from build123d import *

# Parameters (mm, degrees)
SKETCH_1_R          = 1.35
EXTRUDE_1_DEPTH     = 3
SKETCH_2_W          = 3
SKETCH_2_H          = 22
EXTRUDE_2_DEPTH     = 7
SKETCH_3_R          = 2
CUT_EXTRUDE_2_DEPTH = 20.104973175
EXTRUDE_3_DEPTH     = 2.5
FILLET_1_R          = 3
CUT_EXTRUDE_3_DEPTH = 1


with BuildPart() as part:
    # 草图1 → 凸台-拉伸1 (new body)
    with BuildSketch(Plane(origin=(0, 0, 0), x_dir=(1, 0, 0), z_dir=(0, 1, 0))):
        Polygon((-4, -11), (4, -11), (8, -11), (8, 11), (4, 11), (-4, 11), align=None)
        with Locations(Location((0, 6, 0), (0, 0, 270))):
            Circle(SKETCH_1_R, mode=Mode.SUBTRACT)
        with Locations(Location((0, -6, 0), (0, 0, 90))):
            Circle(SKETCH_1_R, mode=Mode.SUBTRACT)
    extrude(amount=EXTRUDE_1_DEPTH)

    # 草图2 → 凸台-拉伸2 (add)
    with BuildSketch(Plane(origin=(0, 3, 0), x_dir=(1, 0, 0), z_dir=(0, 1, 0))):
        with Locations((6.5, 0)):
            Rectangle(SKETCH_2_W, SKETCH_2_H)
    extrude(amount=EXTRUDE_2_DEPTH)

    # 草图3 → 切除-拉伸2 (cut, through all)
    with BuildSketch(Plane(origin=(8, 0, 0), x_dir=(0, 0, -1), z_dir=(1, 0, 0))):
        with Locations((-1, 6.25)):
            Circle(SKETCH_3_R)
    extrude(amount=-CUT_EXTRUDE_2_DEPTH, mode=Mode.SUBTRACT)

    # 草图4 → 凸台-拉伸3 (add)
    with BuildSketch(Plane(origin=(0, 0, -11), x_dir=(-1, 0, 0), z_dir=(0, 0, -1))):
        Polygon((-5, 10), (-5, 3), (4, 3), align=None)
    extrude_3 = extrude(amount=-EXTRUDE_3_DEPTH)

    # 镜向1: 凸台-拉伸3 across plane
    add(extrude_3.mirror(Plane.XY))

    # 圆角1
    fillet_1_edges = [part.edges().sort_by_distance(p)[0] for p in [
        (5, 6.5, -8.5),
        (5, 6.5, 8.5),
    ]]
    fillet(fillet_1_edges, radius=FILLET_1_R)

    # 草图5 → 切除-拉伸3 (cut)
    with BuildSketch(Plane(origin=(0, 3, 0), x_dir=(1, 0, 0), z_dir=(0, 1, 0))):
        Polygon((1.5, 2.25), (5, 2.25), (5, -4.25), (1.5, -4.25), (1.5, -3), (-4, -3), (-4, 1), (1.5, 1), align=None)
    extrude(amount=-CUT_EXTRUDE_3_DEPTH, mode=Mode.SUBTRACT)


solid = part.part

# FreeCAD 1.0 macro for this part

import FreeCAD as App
import Part
import Sketcher

V = App.Vector


def edges_at(feature, points):
    """Names of the edges that pass closest to the given points."""
    edges = feature.Shape.Edges
    near = lambda p: min(range(len(edges)), key=lambda i: edges[i].distToShape(Part.Vertex(*p))[0])
    return sorted({f"Edge{near(p) + 1}" for p in points})

doc = App.newDocument("Part")
body = doc.addObject("PartDesign::Body", "Body")

sketch1 = body.newObject("Sketcher::SketchObject", "Sketch")
sketch1.AttachmentSupport = (doc.getObject("XZ_Plane"), [""])
sketch1.MapMode = "FlatFace"
sketch1.addGeometry(Part.LineSegment(V(-4, 11, 0), V(8, 11, 0)), False)
sketch1.addGeometry(Part.LineSegment(V(8, 11, 0), V(8, -11, 0)), False)
sketch1.addGeometry(Part.LineSegment(V(8, -11, 0), V(-4, -11, 0)), False)
sketch1.addGeometry(Part.LineSegment(V(-4, -11, 0), V(-4, 11, 0)), False)
sketch1.addGeometry(Part.Circle(V(0, 6, 0), V(0, 0, 1), 1.4), False)
sketch1.addGeometry(Part.Circle(V(0, -6, 0), V(0, 0, 1), 1.4), False)
sketch1.addConstraint(Sketcher.Constraint("Coincident", 0, 2, 1, 1))
sketch1.addConstraint(Sketcher.Constraint("Coincident", 1, 2, 2, 1))
sketch1.addConstraint(Sketcher.Constraint("Coincident", 2, 2, 3, 1))
sketch1.addConstraint(Sketcher.Constraint("Coincident", 3, 2, 0, 1))
sketch1.addConstraint(Sketcher.Constraint("Horizontal", 0))
sketch1.addConstraint(Sketcher.Constraint("Vertical", 1))
sketch1.addConstraint(Sketcher.Constraint("Horizontal", 2))
sketch1.addConstraint(Sketcher.Constraint("Vertical", 3))
sketch1.addConstraint(Sketcher.Constraint("Equal", 4, 5))
sketch1.addConstraint(Sketcher.Constraint("Symmetric", 4, 3, 5, 3, -1, 1))
sketch1.addConstraint(Sketcher.Constraint("PointOnObject", 4, 3, -2))
sketch1.addConstraint(Sketcher.Constraint("Diameter", 4, 2.7))
sketch1.addConstraint(Sketcher.Constraint("DistanceX", 0, 1, 0, 2, 12.0))
sketch1.addConstraint(Sketcher.Constraint("DistanceY", 1, 2, 1, 1, 22.0))
sketch1.addConstraint(Sketcher.Constraint("DistanceY", -1, 1, 4, 3, 6.0))
sketch1.addConstraint(Sketcher.Constraint("DistanceX", -1, 1, 0, 2, 8.0))
sketch1.addConstraint(Sketcher.Constraint("DistanceY", -1, 1, 0, 2, 11.0))
pad1 = body.newObject("PartDesign::Pad", "Pad")
pad1.Profile = sketch1
pad1.Length = 3
pad1.Reversed = True

sketch2 = body.newObject("Sketcher::SketchObject", "Sketch001")
sketch2.AttachmentSupport = (doc.getObject("XZ_Plane"), [""])
sketch2.MapMode = "FlatFace"
sketch2.AttachmentOffset = App.Placement(V(0, 0, -3), App.Rotation())
sketch2.addGeometry(Part.LineSegment(V(5, -11, 0), V(5, 11, 0)), False)
sketch2.addGeometry(Part.LineSegment(V(5, 11, 0), V(8, 11, 0)), False)
sketch2.addGeometry(Part.LineSegment(V(8, 11, 0), V(8, -11, 0)), False)
sketch2.addGeometry(Part.LineSegment(V(8, -11, 0), V(5, -11, 0)), False)
sketch2.addConstraint(Sketcher.Constraint("Coincident", 0, 2, 1, 1))
sketch2.addConstraint(Sketcher.Constraint("Coincident", 1, 2, 2, 1))
sketch2.addConstraint(Sketcher.Constraint("Coincident", 2, 2, 3, 1))
sketch2.addConstraint(Sketcher.Constraint("Coincident", 3, 2, 0, 1))
sketch2.addConstraint(Sketcher.Constraint("Vertical", 0))
sketch2.addConstraint(Sketcher.Constraint("Horizontal", 1))
sketch2.addConstraint(Sketcher.Constraint("Vertical", 2))
sketch2.addConstraint(Sketcher.Constraint("Horizontal", 3))
sketch2.addConstraint(Sketcher.Constraint("DistanceX", 1, 1, 1, 2, 3.0))
sketch2.addConstraint(Sketcher.Constraint("DistanceY", 0, 1, 0, 2, 22.0))
sketch2.addConstraint(Sketcher.Constraint("DistanceX", -1, 1, 0, 2, 5.0))
sketch2.addConstraint(Sketcher.Constraint("DistanceY", -1, 1, 0, 2, 11.0))
pad2 = body.newObject("PartDesign::Pad", "Pad001")
pad2.Profile = sketch2
pad2.Length = 7
pad2.Reversed = True

sketch3 = body.newObject("Sketcher::SketchObject", "Sketch002")
sketch3.AttachmentSupport = (doc.getObject("YZ_Plane"), [""])
sketch3.MapMode = "FlatFace"
sketch3.AttachmentOffset = App.Placement(V(0, 0, 8), App.Rotation())
sketch3.addGeometry(Part.Circle(V(6.2, 1, 0), V(0, 0, 1), 2), False)
sketch3.addConstraint(Sketcher.Constraint("Diameter", 0, 4.0))
sketch3.addConstraint(Sketcher.Constraint("DistanceY", -1, 1, 0, 3, 1.0))
sketch3.addConstraint(Sketcher.Constraint("DistanceX", -1, 1, 0, 3, 6.25))
pocket1 = body.newObject("PartDesign::Pocket", "Pocket")
pocket1.Profile = sketch3
pocket1.Type = "ThroughAll"

sketch4 = body.newObject("Sketcher::SketchObject", "Sketch003")
sketch4.AttachmentSupport = (doc.getObject("XY_Plane"), [""])
sketch4.MapMode = "FlatFace"
sketch4.AttachmentOffset = App.Placement(V(0, 0, -11), App.Rotation())
sketch4.addGeometry(Part.LineSegment(V(5, 10, 0), V(5, 3, 0)), False)
sketch4.addGeometry(Part.LineSegment(V(5, 3, 0), V(-4, 3, 0)), False)
sketch4.addGeometry(Part.LineSegment(V(-4, 3, 0), V(5, 10, 0)), False)
sketch4.addConstraint(Sketcher.Constraint("Coincident", 0, 2, 1, 1))
sketch4.addConstraint(Sketcher.Constraint("Coincident", 1, 2, 2, 1))
sketch4.addConstraint(Sketcher.Constraint("Coincident", 2, 2, 0, 1))
sketch4.addConstraint(Sketcher.Constraint("Vertical", 0))
sketch4.addConstraint(Sketcher.Constraint("Horizontal", 1))
sketch4.addConstraint(Sketcher.Constraint("DistanceX", 1, 2, 1, 1, 9.0))
sketch4.addConstraint(Sketcher.Constraint("DistanceY", 0, 2, 0, 1, 7.0))
sketch4.addConstraint(Sketcher.Constraint("DistanceX", -1, 1, 0, 2, 5.0))
sketch4.addConstraint(Sketcher.Constraint("DistanceY", -1, 1, 0, 2, 3.0))
pad3 = body.newObject("PartDesign::Pad", "Pad002")
pad3.Profile = sketch4
pad3.Length = 2.5
doc.recompute()

mirrored = body.newObject("PartDesign::Mirrored", "Mirrored")
mirrored.Originals = [pad3]
mirrored.MirrorPlane = (doc.getObject("XY_Plane"), [""])
body.Tip = mirrored
doc.recompute()

fillet = body.newObject("PartDesign::Fillet", "Fillet")
fillet.Base = (mirrored, edges_at(mirrored, [(5, 6.5, -8.5), (5, 6.5, 8.5)]))
fillet.Radius = 3

sketch5 = body.newObject("Sketcher::SketchObject", "Sketch004")
sketch5.AttachmentSupport = (doc.getObject("XZ_Plane"), [""])
sketch5.MapMode = "FlatFace"
sketch5.AttachmentOffset = App.Placement(V(0, 0, -3), App.Rotation())
sketch5.addGeometry(Part.LineSegment(V(5, -2.2, 0), V(1.5, -2.2, 0)), False)
sketch5.addGeometry(Part.LineSegment(V(1.5, -2.2, 0), V(1.5, -1, 0)), False)
sketch5.addGeometry(Part.LineSegment(V(1.5, -1, 0), V(-4, -1, 0)), False)
sketch5.addGeometry(Part.LineSegment(V(-4, -1, 0), V(-4, 3, 0)), False)
sketch5.addGeometry(Part.LineSegment(V(-4, 3, 0), V(1.5, 3, 0)), False)
sketch5.addGeometry(Part.LineSegment(V(1.5, 3, 0), V(1.5, 4.2, 0)), False)
sketch5.addGeometry(Part.LineSegment(V(1.5, 4.2, 0), V(5, 4.2, 0)), False)
sketch5.addGeometry(Part.LineSegment(V(5, 4.2, 0), V(5, -2.2, 0)), False)
sketch5.addConstraint(Sketcher.Constraint("Coincident", 0, 2, 1, 1))
sketch5.addConstraint(Sketcher.Constraint("Coincident", 1, 2, 2, 1))
sketch5.addConstraint(Sketcher.Constraint("Coincident", 2, 2, 3, 1))
sketch5.addConstraint(Sketcher.Constraint("Coincident", 3, 2, 4, 1))
sketch5.addConstraint(Sketcher.Constraint("Coincident", 4, 2, 5, 1))
sketch5.addConstraint(Sketcher.Constraint("Coincident", 5, 2, 6, 1))
sketch5.addConstraint(Sketcher.Constraint("Coincident", 6, 2, 7, 1))
sketch5.addConstraint(Sketcher.Constraint("Coincident", 7, 2, 0, 1))
sketch5.addConstraint(Sketcher.Constraint("Horizontal", 0))
sketch5.addConstraint(Sketcher.Constraint("Vertical", 1))
sketch5.addConstraint(Sketcher.Constraint("Horizontal", 2))
sketch5.addConstraint(Sketcher.Constraint("Vertical", 3))
sketch5.addConstraint(Sketcher.Constraint("Horizontal", 4))
sketch5.addConstraint(Sketcher.Constraint("Vertical", 5))
sketch5.addConstraint(Sketcher.Constraint("Horizontal", 6))
sketch5.addConstraint(Sketcher.Constraint("Vertical", 7))
sketch5.addConstraint(Sketcher.Constraint("Vertical", 1, 2, 4, 2))
sketch5.addConstraint(Sketcher.Constraint("Equal", 1, 5))
sketch5.addConstraint(Sketcher.Constraint("DistanceY", 3, 1, 3, 2, 4.0))
sketch5.addConstraint(Sketcher.Constraint("DistanceX", 0, 2, 0, 1, 3.5))
sketch5.addConstraint(Sketcher.Constraint("DistanceX", 2, 2, 2, 1, 5.5))
sketch5.addConstraint(Sketcher.Constraint("DistanceY", 7, 2, 7, 1, 6.5))
sketch5.addConstraint(Sketcher.Constraint("DistanceY", 1, 2, -1, 1, 1.0))
sketch5.addConstraint(Sketcher.Constraint("DistanceX", 2, 2, -1, 1, 4.0))
pocket2 = body.newObject("PartDesign::Pocket", "Pocket001")
pocket2.Profile = sketch5
pocket2.Length = 1
pocket2.Reversed = True

doc.recompute()
